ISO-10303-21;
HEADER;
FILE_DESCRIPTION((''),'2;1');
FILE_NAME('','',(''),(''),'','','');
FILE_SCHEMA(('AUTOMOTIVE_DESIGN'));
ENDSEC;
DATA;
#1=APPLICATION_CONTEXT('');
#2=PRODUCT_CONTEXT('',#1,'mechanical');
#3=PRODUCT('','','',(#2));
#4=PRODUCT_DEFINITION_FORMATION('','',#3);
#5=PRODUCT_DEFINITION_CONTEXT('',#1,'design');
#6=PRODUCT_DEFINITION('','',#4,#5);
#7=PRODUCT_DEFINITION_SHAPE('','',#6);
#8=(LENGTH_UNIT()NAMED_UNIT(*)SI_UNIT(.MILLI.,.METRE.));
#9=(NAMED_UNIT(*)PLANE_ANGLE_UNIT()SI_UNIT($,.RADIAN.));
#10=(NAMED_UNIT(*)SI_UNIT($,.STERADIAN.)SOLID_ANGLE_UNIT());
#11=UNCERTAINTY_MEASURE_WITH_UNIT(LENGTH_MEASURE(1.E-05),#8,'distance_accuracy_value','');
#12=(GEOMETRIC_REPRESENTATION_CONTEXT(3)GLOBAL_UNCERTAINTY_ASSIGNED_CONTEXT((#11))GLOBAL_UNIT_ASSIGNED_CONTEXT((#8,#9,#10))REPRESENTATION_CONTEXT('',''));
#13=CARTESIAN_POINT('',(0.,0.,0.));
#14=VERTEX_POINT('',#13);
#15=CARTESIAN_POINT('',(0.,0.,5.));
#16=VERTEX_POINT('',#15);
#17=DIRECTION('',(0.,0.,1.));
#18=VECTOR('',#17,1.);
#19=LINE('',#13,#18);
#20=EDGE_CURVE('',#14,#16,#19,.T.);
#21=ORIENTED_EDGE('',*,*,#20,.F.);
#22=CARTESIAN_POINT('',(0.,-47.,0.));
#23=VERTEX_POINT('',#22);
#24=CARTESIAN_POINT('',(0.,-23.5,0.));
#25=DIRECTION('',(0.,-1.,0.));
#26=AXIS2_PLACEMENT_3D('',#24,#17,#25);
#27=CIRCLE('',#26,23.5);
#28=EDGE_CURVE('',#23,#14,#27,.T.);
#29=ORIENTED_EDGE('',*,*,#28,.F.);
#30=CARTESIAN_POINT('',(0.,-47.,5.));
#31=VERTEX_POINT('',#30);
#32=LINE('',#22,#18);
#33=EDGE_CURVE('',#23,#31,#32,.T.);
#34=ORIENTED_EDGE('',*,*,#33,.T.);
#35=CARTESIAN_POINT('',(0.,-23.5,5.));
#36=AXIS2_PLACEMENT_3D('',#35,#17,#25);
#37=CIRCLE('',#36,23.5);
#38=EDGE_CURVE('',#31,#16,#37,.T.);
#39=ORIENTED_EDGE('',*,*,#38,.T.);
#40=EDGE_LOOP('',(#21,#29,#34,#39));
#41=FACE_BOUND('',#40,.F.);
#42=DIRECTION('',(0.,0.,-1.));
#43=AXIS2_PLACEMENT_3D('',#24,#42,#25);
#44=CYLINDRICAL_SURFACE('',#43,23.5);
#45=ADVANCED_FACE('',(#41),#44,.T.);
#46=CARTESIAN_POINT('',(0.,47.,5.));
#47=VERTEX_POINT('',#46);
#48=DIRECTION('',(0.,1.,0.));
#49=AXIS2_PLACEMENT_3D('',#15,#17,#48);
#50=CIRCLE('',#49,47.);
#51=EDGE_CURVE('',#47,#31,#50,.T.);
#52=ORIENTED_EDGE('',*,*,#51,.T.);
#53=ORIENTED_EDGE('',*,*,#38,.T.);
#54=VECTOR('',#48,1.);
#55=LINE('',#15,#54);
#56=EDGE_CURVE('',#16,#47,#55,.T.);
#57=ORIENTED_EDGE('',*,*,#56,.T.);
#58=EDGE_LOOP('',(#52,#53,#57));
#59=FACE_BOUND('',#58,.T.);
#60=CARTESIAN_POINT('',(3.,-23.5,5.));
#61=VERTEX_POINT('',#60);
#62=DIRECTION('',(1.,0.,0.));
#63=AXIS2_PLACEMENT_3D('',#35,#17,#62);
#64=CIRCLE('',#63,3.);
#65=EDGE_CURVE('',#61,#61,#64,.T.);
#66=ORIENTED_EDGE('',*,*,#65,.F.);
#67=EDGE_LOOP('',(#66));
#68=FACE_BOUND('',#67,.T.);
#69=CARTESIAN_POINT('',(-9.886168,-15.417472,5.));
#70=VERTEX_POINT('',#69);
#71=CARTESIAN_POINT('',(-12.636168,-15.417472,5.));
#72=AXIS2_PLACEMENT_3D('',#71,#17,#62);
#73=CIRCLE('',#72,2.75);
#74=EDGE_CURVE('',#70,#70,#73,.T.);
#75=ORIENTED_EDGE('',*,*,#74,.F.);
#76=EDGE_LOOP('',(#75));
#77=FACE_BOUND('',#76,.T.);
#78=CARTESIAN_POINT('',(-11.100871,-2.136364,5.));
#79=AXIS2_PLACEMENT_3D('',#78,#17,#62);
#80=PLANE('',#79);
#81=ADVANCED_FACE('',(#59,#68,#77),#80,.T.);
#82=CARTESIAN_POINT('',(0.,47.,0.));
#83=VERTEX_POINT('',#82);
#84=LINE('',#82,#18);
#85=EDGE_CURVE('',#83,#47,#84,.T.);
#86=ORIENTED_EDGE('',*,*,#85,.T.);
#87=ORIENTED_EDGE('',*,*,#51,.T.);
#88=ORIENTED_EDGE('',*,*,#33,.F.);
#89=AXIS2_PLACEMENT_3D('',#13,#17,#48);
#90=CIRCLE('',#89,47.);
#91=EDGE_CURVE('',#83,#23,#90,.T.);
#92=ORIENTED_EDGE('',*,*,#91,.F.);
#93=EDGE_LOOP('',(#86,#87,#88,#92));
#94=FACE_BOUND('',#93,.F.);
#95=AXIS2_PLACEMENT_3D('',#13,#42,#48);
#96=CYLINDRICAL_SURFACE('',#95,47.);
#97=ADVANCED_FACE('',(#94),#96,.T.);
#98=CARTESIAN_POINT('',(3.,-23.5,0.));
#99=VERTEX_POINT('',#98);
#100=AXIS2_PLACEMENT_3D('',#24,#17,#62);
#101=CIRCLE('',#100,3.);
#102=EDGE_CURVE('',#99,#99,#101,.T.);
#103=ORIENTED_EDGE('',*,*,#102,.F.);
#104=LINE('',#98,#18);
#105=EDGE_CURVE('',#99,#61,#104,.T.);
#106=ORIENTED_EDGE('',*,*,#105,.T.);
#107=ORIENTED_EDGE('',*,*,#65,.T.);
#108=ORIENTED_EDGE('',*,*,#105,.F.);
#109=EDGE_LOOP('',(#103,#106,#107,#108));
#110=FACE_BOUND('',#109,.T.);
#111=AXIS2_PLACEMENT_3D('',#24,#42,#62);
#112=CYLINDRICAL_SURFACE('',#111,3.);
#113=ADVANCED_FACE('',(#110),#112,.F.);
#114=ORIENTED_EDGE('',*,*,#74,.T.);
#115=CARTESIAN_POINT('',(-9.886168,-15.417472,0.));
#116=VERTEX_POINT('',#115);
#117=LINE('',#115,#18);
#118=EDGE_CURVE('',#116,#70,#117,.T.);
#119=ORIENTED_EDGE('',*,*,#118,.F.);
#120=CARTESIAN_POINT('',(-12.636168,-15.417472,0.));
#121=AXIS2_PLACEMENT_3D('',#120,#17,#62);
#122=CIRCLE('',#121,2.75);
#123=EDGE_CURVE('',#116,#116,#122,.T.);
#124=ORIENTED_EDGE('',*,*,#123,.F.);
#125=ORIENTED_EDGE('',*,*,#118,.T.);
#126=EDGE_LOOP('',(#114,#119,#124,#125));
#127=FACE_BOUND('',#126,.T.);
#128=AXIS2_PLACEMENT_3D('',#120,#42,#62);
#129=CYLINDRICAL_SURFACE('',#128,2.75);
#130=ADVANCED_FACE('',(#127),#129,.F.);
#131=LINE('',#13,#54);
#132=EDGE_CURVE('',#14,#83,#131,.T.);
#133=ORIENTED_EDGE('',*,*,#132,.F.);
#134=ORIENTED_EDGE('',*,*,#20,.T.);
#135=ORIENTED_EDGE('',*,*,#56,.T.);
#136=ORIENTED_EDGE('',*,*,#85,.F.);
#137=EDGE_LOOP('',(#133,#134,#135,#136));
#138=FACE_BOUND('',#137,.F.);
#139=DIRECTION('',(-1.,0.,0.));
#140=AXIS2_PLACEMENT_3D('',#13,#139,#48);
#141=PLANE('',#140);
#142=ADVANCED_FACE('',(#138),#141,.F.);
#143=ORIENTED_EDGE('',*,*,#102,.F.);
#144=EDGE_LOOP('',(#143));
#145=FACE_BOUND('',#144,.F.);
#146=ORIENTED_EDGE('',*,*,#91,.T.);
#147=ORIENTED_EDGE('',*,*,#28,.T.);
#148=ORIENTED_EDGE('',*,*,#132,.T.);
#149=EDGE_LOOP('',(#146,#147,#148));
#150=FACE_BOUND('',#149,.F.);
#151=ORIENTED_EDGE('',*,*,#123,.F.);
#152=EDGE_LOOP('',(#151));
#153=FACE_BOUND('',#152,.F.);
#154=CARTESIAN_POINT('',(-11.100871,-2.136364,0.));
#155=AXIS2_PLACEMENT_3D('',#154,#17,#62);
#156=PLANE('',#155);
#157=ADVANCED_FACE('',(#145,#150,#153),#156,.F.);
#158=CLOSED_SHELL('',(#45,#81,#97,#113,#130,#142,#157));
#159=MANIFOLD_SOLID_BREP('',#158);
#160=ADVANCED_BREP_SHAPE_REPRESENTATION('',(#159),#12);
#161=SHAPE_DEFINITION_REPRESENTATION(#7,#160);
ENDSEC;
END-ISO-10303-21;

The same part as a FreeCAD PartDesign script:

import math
import FreeCAD as App
import Part
import Sketcher

V = App.Vector
Q = App.Units.Quantity

doc = App.newDocument("Part")
params = doc.addObject("Spreadsheet::Sheet", "Params")
for row, (alias, value) in enumerate([
    ("sketch1_diameter", "6 mm"),
    ("sketch1_radius", "47 mm"),
    ("sketch1_diameter2", "5.5 mm"),
    ("pad1_length", "5 mm"),
], start=1):
    params.set(f"A{row}", alias)
    params.set(f"B{row}", "=" + value)
    params.setAlias(f"B{row}", alias)

body = doc.addObject("PartDesign::Body", "Body")

# Sketch on XY plane
sketch1 = body.newObject("Sketcher::SketchObject", "Sketch")
sketch1.AttachmentSupport = (doc.getObject("XY_Plane"), [""])
sketch1.MapMode = "FlatFace"
sketch1.addGeometry([
    Part.LineSegment(V(0, 0, 0), V(0, 47, 0)),  # 0
    Part.ArcOfCircle(Part.Circle(V(0, 0, 0), V(0, 0, 1), 47), math.radians(90), math.radians(270)),  # 1
    Part.ArcOfCircle(Part.Circle(V(0, -23.5, 0), V(0, 0, 1), 23.5), math.radians(-90), math.radians(90)),  # 2
    Part.Circle(V(0, -23.5, 0), V(0, 0, 1), 3),  # 3
    Part.Circle(V(-12.6, -15.4, 0), V(0, 0, 1), 2.8),  # 4
], False)
sketch1.addConstraint([
    Sketcher.Constraint("Coincident", 0, 2, 1, 1),
    Sketcher.Constraint("Tangent", 1, 2, 2, 1),
    Sketcher.Constraint("Coincident", 2, 2, 0, 1),
    Sketcher.Constraint("Vertical", 0),
    Sketcher.Constraint("Coincident", 1, 3, -1, 1),
    Sketcher.Constraint("Coincident", 2, 2, -1, 1),
    Sketcher.Constraint("Coincident", 3, 3, 2, 3),
    Sketcher.Constraint("PointOnObject", 2, 3, -2),
    Sketcher.Constraint("Diameter", 3, Q("6 mm")),
    Sketcher.Constraint("Radius", 1, Q("47 mm")),
    Sketcher.Constraint("Diameter", 4, Q("5.5 mm")),
    Sketcher.Constraint("DistanceX", 4, 3, 1, 2, Q("12.636168 mm")),
    Sketcher.Constraint("DistanceY", 1, 2, 4, 3, Q("31.582528 mm")),
])
sketch1.setExpression("Constraints[8]", "Params.sketch1_diameter")
sketch1.setExpression("Constraints[9]", "Params.sketch1_radius")
sketch1.setExpression("Constraints[10]", "Params.sketch1_diameter2")
pad1 = body.newObject("PartDesign::Pad", "Pad")
pad1.Profile = sketch1
pad1.setExpression("Length", "Params.pad1_length")

doc.recompute()
